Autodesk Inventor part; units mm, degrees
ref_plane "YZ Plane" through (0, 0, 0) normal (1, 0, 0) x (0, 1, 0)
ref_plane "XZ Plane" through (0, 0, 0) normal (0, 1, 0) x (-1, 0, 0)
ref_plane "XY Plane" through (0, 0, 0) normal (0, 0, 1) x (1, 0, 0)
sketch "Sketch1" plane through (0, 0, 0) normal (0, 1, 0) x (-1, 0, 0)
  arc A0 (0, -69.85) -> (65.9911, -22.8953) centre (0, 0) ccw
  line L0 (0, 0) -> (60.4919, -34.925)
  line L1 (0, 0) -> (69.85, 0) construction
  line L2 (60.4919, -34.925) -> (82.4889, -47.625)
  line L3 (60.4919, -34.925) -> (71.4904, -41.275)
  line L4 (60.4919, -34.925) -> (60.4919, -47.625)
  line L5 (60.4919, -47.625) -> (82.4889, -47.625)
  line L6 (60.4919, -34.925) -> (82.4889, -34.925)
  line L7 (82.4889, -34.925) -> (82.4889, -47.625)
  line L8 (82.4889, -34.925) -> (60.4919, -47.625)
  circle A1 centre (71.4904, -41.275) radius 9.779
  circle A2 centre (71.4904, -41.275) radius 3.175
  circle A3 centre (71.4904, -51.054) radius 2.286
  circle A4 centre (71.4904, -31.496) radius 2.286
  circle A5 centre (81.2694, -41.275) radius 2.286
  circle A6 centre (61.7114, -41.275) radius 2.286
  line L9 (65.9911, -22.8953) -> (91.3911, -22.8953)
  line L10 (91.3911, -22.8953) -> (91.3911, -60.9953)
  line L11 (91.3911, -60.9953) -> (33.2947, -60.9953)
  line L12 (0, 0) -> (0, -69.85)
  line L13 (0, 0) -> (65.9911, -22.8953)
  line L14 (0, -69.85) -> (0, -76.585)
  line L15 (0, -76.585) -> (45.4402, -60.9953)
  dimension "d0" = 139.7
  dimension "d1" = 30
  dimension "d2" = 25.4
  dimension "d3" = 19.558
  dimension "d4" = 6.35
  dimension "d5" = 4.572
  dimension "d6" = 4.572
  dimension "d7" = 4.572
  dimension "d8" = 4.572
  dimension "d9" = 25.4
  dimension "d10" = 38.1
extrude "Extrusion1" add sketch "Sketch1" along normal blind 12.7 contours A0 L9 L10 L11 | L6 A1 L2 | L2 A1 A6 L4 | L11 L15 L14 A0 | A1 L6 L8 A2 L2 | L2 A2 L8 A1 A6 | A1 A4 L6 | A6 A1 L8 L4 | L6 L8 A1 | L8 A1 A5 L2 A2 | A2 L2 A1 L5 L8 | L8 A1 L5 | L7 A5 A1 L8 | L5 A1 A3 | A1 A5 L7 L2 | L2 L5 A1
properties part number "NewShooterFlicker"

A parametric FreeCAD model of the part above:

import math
import FreeCAD as App
import Part
import Sketcher
from FreeCAD import Vector
Q = App.Units.Quantity

doc = App.newDocument("Part")
body = doc.addObject("PartDesign::Body", "Body")

# Sketch on XZ plane
sketch1 = body.newObject("Sketcher::SketchObject", "Sketch")
sketch1.AttachmentSupport = (doc.getObject("XZ_Plane"), [""])
sketch1.MapMode = "FlatFace"
sketch1.addGeometry([
    Part.ArcOfCircle(Part.Circle(Vector(0, 0, 0), Vector(0, 0, 1), 69.8), math.radians(-161), math.radians(-90)),  # 0
    Part.LineSegment(Vector(0, -69.8, 0), Vector(0, -76.6, 0)),  # 1
    Part.LineSegment(Vector(0, -76.6, 0), Vector(-45.4, -61, 0)),  # 2
    Part.LineSegment(Vector(-45.4, -61, 0), Vector(-91.4, -61, 0)),  # 3
    Part.LineSegment(Vector(-91.4, -61, 0), Vector(-91.4, -22.9, 0)),  # 4
    Part.LineSegment(Vector(-91.4, -22.9, 0), Vector(-66, -22.9, 0)),  # 5
    Part.Circle(Vector(-61.7, -41.3, 0), Vector(0, 0, 1), 2.3),  # 6
    Part.Circle(Vector(-71.5, -51.1, 0), Vector(0, 0, 1), 2.3),  # 7
    Part.Circle(Vector(-81.3, -41.3, 0), Vector(0, 0, 1), 2.3),  # 8
    Part.Circle(Vector(-71.5, -31.5, 0), Vector(0, 0, 1), 2.3),  # 9
    Part.Circle(Vector(-71.5, -41.3, 0), Vector(0, 0, 1), 3.2),  # 10
], False)
sketch1.addConstraint([
    Sketcher.Constraint("Coincident", 0, 2, 1, 1),
    Sketcher.Constraint("Coincident", 1, 2, 2, 1),
    Sketcher.Constraint("Coincident", 2, 2, 3, 1),
    Sketcher.Constraint("Coincident", 3, 2, 4, 1),
    Sketcher.Constraint("Coincident", 4, 2, 5, 1),
    Sketcher.Constraint("Coincident", 5, 2, 0, 1),
    Sketcher.Constraint("Vertical", 1),
    Sketcher.Constraint("Horizontal", 3),
    Sketcher.Constraint("Vertical", 4),
    Sketcher.Constraint("Horizontal", 5),
    Sketcher.Constraint("Coincident", 0, 3, -1, 1),
    Sketcher.Constraint("Equal", 6, 7),
    Sketcher.Constraint("Equal", 7, 8),
    Sketcher.Constraint("Equal", 8, 9),
    Sketcher.Constraint("PointOnObject", 0, 2, -2),
    Sketcher.Constraint("Horizontal", 6, 3, 8, 3),
    Sketcher.Constraint("Horizontal", 8, 3, 10, 3),
    Sketcher.Constraint("Vertical", 7, 3, 9, 3),
    Sketcher.Constraint("Vertical", 9, 3, 10, 3),
    Sketcher.Constraint("Diameter", 6, Q("0.18 in")),
    Sketcher.Constraint("Diameter", 10, Q("0.25 in")),
    Sketcher.Constraint("DistanceX", 5, 1, 5, 2, Q("1 in")),
    Sketcher.Constraint("Radius", 0, Q("2.75 in")),
    Sketcher.Constraint("DistanceY", 4, 1, 4, 2, Q("1.5 in")),
    Sketcher.Constraint("DistanceX", 8, 3, 6, 3, Q("0.77 in")),
    Sketcher.Constraint("DistanceY", 7, 3, 9, 3, Q("0.77 in")),
    Sketcher.Constraint("DistanceY", 7, 3, -1, 1, Q("2.01 in")),
    Sketcher.Constraint("DistanceX", 3, 2, 3, 1, Q("1.8091 in")),
    Sketcher.Constraint("DistanceY", 6, 3, -1, 1, Q("1.625 in")),
    Sketcher.Constraint("DistanceX", 7, 3, 6, 3, Q("0.385 in")),
    Sketcher.Constraint("DistanceY", 1, 2, 1, 1, 6.735),
    Sketcher.Constraint("DistanceY", 2, 2, -1, 1, Q("2.4014 in")),
    Sketcher.Constraint("DistanceX", 6, 3, 2, 2, Q("0.6406 in")),
])
pad1 = body.newObject("PartDesign::Pad", "Pad")
pad1.Profile = sketch1
pad1.Length = Q("0.5 in")
pad1.Reversed = True

doc.recompute()
